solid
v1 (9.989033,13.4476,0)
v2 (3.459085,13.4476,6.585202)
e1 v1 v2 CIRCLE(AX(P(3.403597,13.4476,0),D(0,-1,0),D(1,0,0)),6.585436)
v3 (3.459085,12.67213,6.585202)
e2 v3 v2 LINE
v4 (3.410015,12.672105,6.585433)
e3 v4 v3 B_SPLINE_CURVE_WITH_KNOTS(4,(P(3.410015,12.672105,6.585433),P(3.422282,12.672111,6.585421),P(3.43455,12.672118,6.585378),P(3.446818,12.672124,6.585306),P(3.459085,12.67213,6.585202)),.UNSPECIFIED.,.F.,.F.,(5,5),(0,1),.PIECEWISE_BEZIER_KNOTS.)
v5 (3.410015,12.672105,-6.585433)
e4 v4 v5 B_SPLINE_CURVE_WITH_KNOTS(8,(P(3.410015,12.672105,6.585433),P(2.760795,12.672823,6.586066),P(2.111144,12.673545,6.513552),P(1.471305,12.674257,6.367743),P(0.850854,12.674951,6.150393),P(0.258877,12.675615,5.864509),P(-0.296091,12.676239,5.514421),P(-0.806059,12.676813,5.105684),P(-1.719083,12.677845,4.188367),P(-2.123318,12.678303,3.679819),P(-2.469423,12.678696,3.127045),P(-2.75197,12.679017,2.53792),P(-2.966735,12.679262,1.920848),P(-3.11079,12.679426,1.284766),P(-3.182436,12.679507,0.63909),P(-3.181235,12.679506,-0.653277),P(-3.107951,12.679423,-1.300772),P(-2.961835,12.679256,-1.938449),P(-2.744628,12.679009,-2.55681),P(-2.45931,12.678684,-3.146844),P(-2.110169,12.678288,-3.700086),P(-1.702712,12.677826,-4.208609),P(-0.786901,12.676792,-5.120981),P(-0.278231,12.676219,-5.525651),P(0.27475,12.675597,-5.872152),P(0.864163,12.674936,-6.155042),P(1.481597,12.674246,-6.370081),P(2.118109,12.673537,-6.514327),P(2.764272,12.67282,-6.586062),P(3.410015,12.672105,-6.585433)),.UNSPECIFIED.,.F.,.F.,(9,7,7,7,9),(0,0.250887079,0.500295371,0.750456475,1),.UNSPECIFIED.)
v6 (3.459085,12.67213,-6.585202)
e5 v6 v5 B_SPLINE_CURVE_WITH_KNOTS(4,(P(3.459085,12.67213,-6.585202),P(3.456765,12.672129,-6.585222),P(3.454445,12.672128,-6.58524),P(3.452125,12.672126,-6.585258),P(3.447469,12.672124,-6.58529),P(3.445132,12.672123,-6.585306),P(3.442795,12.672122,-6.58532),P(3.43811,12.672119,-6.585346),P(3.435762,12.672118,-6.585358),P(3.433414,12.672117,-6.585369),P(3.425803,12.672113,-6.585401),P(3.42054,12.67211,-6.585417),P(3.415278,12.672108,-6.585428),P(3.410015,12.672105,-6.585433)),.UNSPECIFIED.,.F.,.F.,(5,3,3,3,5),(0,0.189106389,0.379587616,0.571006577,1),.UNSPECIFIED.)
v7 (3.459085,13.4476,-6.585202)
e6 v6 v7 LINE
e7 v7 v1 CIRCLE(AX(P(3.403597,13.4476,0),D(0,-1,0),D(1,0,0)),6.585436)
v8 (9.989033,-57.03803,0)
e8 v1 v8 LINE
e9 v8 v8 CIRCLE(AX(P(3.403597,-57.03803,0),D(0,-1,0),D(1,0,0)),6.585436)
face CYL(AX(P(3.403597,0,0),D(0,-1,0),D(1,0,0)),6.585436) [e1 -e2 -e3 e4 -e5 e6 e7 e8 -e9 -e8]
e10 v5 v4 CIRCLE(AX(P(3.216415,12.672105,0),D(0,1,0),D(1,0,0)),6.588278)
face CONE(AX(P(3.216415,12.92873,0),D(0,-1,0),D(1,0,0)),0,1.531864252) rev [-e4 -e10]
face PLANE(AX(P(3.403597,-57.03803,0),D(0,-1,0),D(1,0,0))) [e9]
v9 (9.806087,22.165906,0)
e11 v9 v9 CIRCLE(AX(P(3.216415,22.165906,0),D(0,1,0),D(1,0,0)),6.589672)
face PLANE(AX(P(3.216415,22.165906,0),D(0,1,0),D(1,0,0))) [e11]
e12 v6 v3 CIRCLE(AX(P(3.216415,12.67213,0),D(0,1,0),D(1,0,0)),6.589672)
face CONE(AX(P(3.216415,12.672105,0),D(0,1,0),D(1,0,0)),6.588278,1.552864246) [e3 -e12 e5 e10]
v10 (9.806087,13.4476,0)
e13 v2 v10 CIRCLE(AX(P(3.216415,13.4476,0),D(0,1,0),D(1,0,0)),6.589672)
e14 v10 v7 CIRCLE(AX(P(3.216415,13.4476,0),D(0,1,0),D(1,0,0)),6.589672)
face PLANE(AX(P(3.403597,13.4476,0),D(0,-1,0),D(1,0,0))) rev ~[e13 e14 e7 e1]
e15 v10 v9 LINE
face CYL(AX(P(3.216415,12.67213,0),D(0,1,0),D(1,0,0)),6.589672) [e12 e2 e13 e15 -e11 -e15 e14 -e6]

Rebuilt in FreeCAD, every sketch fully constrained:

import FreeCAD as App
import Part
import Sketcher


def add_polygon(sketch, points):
    """Adds a closed chain of lines whose ends are joined by coincident constraints."""
    first, n = sketch.GeometryCount, len(points)
    for a, b in zip(points, points[1:] + points[:1]):
        sketch.addGeometry(Part.LineSegment(App.Vector(*a, 0), App.Vector(*b, 0)), False)
    for i in range(n):
        sketch.addConstraint(Sketcher.Constraint("Coincident", first + i, 2, first + (i + 1) % n, 1))

doc = App.newDocument("Part")
params = doc.addObject("Spreadsheet::Sheet", "Params")
for row, (alias, value) in enumerate([
    ("revolution_angle", "360 deg"),
    ("pad1_length", "57.03803 mm"),
    ("pad1_length2", "13.4476 mm"),
], start=1):
    params.set(f"A{row}", alias)
    params.set(f"B{row}", "=" + value)
    params.setAlias(f"B{row}", alias)

body = doc.addObject("PartDesign::Body", "Body")

# Sketch on XY plane
sketch1 = body.newObject("Sketcher::SketchObject", "Sketch")
sketch1.AttachmentSupport = (doc.getObject("XY_Plane"), [""])
sketch1.MapMode = "FlatFace"
add_polygon(sketch1, [(3.2164, 22.1659), (3.2164, 12.9287), (9.8047, 12.6721), (9.8061, 12.6721), (9.8061, 22.1659)])  # lines 0-4
sketch1.addGeometry(Part.LineSegment(App.Vector(3.2164, 12.6721, 0), App.Vector(3.2164, 22.1659, 0)), True)  # axis
sketch1.addConstraint(Sketcher.Constraint("Vertical", 0))
sketch1.addConstraint(Sketcher.Constraint("Vertical", 3))
sketch1.addConstraint(Sketcher.Constraint("Horizontal", 4))
sketch1.addConstraint(Sketcher.Constraint("Vertical", 5))
sketch1.addConstraint(Sketcher.Constraint("Coincident", 5, 2, 4, 2))
sketch1.addConstraint(Sketcher.Constraint("Horizontal", 1, 2, 5, 1))
sketch1.addConstraint(Sketcher.Constraint("DistanceY", 5, 1, 5, 2, 9.493801))
sketch1.addConstraint(Sketcher.Constraint("DistanceY", 2, 2, 0, 2, 0.2566))
sketch1.addConstraint(Sketcher.Constraint("DistanceX", 4, 2, 4, 1, 6.589672))
sketch1.addConstraint(Sketcher.Constraint("DistanceY", 0, 2, 0, 1, 9.237176))
sketch1.addConstraint(Sketcher.Constraint("DistanceY", -1, 1, 0, 2, 12.92873))
sketch1.addConstraint(Sketcher.Constraint("DistanceX", 0, 2, 1, 2, 6.588278))
sketch1.addConstraint(Sketcher.Constraint("DistanceX", -1, 1, 0, 2, 3.216415))
revolution = body.newObject("PartDesign::Revolution", "Revolution")
revolution.Profile = sketch1
revolution.ReferenceAxis = (sketch1, ["Axis0"])
revolution.setExpression("Angle", "Params.revolution_angle")

# Sketch on XZ plane
sketch2 = body.newObject("Sketcher::SketchObject", "Sketch001")
sketch2.AttachmentSupport = (doc.getObject("XZ_Plane"), [""])
sketch2.MapMode = "FlatFace"
sketch2.addGeometry(Part.Circle(App.Vector(3, 0, 0), App.Vector(0, 0, 1), 7), False)
sketch2.addConstraint(Sketcher.Constraint("PointOnObject", 0, 3, -1))
sketch2.addConstraint(Sketcher.Constraint("Diameter", 0, 13.170872))
sketch2.addConstraint(Sketcher.Constraint("DistanceX", -1, 1, 0, 3, 3.403597))
pad1 = body.newObject("PartDesign::Pad", "Pad")
pad1.Profile = sketch2
pad1.Type = "TwoLengths"
pad1.setExpression("Length", "Params.pad1_length")
pad1.setExpression("Length2", "Params.pad1_length2")

doc.recompute()
